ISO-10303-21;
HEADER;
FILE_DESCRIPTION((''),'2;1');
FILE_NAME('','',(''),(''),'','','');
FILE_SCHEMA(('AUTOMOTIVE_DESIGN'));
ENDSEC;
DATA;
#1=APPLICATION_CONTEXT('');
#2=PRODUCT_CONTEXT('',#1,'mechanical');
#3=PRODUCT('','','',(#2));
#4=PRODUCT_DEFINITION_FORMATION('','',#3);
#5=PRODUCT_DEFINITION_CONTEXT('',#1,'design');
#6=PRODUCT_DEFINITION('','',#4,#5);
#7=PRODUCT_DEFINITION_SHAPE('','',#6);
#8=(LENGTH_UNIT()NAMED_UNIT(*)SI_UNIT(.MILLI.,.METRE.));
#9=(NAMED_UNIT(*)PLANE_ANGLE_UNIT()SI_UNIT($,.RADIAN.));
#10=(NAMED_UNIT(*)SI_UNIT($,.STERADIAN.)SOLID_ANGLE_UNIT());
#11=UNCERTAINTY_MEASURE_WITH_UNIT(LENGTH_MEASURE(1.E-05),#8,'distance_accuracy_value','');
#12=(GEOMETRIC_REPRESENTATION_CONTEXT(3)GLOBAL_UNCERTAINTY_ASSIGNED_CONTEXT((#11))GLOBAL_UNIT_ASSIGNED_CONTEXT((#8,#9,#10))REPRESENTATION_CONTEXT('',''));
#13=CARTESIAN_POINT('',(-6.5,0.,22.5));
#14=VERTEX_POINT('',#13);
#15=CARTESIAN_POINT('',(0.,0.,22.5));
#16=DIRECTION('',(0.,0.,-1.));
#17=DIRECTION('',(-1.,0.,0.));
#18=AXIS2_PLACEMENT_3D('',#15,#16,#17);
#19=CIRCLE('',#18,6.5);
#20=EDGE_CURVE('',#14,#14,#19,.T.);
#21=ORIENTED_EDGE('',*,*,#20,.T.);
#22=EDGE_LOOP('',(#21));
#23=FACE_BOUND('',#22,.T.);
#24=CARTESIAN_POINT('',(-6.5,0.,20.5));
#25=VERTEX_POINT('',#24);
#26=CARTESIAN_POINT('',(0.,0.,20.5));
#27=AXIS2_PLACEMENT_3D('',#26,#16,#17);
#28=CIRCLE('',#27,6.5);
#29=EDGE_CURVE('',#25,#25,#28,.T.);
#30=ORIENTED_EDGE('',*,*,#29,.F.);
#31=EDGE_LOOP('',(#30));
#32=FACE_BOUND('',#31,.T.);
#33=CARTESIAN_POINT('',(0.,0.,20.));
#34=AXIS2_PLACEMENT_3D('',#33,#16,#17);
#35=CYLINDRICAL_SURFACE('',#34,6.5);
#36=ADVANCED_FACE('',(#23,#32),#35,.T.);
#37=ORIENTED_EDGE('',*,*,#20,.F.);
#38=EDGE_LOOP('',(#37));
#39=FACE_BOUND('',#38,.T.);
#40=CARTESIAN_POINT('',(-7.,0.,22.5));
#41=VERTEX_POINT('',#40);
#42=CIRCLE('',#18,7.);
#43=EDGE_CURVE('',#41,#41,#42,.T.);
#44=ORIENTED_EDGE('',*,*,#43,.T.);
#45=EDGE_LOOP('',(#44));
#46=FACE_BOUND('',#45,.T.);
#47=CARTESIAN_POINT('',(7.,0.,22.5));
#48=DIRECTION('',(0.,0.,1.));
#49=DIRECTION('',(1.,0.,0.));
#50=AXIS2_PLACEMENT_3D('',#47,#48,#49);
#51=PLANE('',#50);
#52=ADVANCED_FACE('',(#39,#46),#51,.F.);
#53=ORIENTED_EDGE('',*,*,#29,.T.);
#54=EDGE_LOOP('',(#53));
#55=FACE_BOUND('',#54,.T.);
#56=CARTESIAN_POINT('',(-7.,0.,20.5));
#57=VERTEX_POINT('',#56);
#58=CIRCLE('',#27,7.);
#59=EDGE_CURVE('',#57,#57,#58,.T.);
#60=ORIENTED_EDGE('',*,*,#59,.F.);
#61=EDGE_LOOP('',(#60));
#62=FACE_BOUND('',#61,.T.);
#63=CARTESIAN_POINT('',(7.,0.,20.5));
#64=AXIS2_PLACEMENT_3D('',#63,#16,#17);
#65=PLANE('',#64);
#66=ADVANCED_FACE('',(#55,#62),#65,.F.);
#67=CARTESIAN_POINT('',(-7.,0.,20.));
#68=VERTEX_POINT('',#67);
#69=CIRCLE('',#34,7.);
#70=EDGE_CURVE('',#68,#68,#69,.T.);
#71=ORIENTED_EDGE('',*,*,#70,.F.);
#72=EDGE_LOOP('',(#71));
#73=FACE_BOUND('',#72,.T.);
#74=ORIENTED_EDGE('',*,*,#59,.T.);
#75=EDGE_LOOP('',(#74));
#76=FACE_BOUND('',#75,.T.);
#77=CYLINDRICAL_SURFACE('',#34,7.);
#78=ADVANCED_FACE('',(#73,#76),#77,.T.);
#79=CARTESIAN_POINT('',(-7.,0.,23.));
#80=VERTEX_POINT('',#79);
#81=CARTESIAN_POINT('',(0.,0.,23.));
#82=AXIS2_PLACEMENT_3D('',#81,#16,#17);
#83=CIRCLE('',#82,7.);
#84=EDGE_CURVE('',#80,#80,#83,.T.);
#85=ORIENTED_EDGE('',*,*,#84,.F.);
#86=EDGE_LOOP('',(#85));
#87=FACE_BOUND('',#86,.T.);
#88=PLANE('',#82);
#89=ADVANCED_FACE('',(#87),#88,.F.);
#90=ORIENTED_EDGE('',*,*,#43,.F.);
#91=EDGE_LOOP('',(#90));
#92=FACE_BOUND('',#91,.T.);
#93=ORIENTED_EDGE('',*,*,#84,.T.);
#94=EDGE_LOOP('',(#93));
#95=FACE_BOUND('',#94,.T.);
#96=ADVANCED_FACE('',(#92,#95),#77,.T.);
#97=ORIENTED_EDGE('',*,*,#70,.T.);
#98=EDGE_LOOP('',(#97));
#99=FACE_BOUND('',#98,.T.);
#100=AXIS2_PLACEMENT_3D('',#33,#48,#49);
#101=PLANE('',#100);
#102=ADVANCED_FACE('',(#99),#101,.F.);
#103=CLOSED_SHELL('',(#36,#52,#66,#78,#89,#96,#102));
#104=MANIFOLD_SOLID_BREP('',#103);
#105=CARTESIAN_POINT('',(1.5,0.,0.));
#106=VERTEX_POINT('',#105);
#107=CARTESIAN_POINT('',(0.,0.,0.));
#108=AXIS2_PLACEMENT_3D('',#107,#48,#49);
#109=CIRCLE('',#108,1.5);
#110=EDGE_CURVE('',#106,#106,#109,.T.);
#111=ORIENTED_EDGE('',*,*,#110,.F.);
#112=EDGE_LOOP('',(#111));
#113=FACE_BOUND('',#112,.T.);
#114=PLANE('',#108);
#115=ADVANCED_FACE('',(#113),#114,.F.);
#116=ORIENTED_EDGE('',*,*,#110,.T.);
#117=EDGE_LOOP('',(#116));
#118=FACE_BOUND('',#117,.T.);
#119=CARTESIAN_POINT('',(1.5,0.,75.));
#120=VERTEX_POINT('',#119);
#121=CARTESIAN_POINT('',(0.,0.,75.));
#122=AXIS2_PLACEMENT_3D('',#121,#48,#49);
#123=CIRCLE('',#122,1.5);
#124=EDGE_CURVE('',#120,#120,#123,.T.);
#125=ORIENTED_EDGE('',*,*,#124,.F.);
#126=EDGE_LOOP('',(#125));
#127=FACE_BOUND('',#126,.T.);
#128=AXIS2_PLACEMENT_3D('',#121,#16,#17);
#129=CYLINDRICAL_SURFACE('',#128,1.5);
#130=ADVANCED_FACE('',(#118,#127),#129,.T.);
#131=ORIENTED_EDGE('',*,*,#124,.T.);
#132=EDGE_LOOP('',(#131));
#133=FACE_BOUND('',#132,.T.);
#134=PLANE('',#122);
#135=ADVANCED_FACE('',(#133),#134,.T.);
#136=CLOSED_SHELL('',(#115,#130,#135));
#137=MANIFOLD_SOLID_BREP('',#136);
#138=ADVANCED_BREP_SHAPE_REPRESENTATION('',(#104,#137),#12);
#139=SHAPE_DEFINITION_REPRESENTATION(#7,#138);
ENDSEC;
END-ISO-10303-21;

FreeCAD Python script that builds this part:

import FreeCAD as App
import Part
import Sketcher
Q = App.Units.Quantity


def add_polygon(sketch, points):
    """Adds a closed chain of lines whose ends are joined by coincident constraints."""
    first, n = sketch.GeometryCount, len(points)
    for a, b in zip(points, points[1:] + points[:1]):
        sketch.addGeometry(Part.LineSegment(App.Vector(*a, 0), App.Vector(*b, 0)), False)
    for i in range(n):
        sketch.addConstraint(Sketcher.Constraint("Coincident", first + i, 2, first + (i + 1) % n, 1))

doc = App.newDocument("Part")
params = doc.addObject("Spreadsheet::Sheet", "Params")
for row, (alias, value) in enumerate([
    ("sketch1_diameter", "3 mm"),
    ("pad1_length", "75 mm"),
    ("sketch2_width", "7 mm"),
    ("sketch2_height", "3 mm"),
    ("sketch2_height2", "2 mm"),
    ("revolution_angle", "360 deg"),
], start=1):
    params.set(f"A{row}", alias)
    params.set(f"B{row}", "=" + value)
    params.setAlias(f"B{row}", alias)

body = doc.addObject("PartDesign::Body", "Body")

# Sketch on XY plane
sketch1 = body.newObject("Sketcher::SketchObject", "Sketch")
sketch1.AttachmentSupport = (doc.getObject("XY_Plane"), [""])
sketch1.MapMode = "FlatFace"
sketch1.addGeometry(Part.Circle(App.Vector(0, 0, 0), App.Vector(0, 0, 1), 1.5), False)
sketch1.addConstraint(Sketcher.Constraint("Coincident", 0, 3, -1, 1))
sketch1.addConstraint(Sketcher.Constraint("Diameter", 0, Q("3 mm")))
sketch1.setExpression("Constraints[1]", "Params.sketch1_diameter")
pad1 = body.newObject("PartDesign::Pad", "Pad")
pad1.Profile = sketch1
pad1.setExpression("Length", "Params.pad1_length")
body2 = doc.addObject("PartDesign::Body", "Body001")

# Sketch on XZ plane
sketch2 = body2.newObject("Sketcher::SketchObject", "Sketch001")
sketch2.AttachmentSupport = (doc.getObject("XZ_Plane001"), [""])
sketch2.MapMode = "FlatFace"
add_polygon(sketch2, [(7, 20.5), (7, 20), (0, 20), (0, 23), (7, 23), (7, 22.5), (6.5, 22.5), (6.5, 20.5)])  # lines 0-7
sketch2.addConstraint(Sketcher.Constraint("Vertical", 0))
sketch2.addConstraint(Sketcher.Constraint("Horizontal", 1))
sketch2.addConstraint(Sketcher.Constraint("Vertical", 2))
sketch2.addConstraint(Sketcher.Constraint("Horizontal", 3))
sketch2.addConstraint(Sketcher.Constraint("Vertical", 4))
sketch2.addConstraint(Sketcher.Constraint("Horizontal", 5))
sketch2.addConstraint(Sketcher.Constraint("Vertical", 6))
sketch2.addConstraint(Sketcher.Constraint("Horizontal", 7))
sketch2.addConstraint(Sketcher.Constraint("PointOnObject", 1, 2, -2))
sketch2.addConstraint(Sketcher.Constraint("Vertical", 0, 2, 3, 2))
sketch2.addConstraint(Sketcher.Constraint("Equal", 7, 0))
sketch2.addConstraint(Sketcher.Constraint("Equal", 0, 4))
sketch2.addConstraint(Sketcher.Constraint("DistanceX", 1, 2, 1, 1, Q("7 mm")))
sketch2.addConstraint(Sketcher.Constraint("DistanceY", 2, 1, 2, 2, Q("3 mm")))
sketch2.addConstraint(Sketcher.Constraint("DistanceY", 6, 2, 6, 1, Q("2 mm")))
sketch2.addConstraint(Sketcher.Constraint("DistanceY", -1, 1, 0, 2, Q("20 mm")))
sketch2.setExpression("Constraints[20]", "Params.sketch2_width")
sketch2.setExpression("Constraints[21]", "Params.sketch2_height")
sketch2.setExpression("Constraints[22]", "Params.sketch2_height2")
revolution = body2.newObject("PartDesign::Revolution", "Revolution")
revolution.Profile = sketch2
revolution.ReferenceAxis = (sketch2, ["V_Axis"])
revolution.setExpression("Angle", "Params.revolution_angle")

doc.recompute()
